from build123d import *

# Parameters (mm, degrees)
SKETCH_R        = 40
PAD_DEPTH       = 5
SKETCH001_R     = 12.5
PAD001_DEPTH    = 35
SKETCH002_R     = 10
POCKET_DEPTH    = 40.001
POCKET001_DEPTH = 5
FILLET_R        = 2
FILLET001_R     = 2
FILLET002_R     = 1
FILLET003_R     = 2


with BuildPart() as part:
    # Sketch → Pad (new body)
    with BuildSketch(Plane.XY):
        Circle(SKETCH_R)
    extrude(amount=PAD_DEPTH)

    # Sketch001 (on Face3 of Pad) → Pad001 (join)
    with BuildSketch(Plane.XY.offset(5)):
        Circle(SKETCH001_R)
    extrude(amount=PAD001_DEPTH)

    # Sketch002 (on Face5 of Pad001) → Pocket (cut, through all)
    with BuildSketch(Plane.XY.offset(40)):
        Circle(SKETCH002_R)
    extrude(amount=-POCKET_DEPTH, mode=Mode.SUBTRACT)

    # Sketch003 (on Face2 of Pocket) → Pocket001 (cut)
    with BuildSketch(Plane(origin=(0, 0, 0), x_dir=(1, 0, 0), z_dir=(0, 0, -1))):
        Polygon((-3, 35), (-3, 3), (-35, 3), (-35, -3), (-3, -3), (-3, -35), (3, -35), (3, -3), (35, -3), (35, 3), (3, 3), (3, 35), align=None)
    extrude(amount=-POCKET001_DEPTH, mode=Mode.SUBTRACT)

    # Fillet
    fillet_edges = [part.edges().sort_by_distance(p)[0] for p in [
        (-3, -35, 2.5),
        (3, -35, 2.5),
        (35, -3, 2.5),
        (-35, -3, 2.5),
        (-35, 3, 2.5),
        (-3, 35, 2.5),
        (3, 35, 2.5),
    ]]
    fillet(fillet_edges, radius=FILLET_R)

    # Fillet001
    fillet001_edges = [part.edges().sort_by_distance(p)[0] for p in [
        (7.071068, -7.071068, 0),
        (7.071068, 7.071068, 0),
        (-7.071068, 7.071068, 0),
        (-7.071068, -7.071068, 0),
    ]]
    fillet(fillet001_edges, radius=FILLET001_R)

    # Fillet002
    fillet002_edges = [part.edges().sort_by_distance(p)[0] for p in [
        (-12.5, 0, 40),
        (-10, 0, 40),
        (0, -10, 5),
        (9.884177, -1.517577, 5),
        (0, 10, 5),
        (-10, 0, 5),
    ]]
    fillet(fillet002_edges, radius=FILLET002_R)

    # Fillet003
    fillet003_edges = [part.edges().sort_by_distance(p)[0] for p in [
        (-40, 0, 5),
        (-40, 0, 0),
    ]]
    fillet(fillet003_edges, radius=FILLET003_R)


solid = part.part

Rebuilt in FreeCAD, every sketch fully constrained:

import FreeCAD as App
import Part
import Sketcher

V = App.Vector


def edges_at(feature, points):
    """Names of the edges that pass closest to the given points."""
    edges = feature.Shape.Edges
    near = lambda p: min(range(len(edges)), key=lambda i: edges[i].distToShape(Part.Vertex(*p))[0])
    return sorted({f"Edge{near(p) + 1}" for p in points})


def add_polygon(sketch, points):
    """Adds a closed chain of lines whose ends are joined by coincident constraints."""
    first, n = sketch.GeometryCount, len(points)
    for a, b in zip(points, points[1:] + points[:1]):
        sketch.addGeometry(Part.LineSegment(App.Vector(*a, 0), App.Vector(*b, 0)), False)
    for i in range(n):
        sketch.addConstraint(Sketcher.Constraint("Coincident", first + i, 2, first + (i + 1) % n, 1))

doc = App.newDocument("Part")
params = doc.addObject("Spreadsheet::Sheet", "Params")
for row, (alias, value) in enumerate([
    ("sketch1_diameter", "80 mm"),
    ("pad1_length", "5 mm"),
    ("sketch2_diameter", "25 mm"),
    ("pad2_length", "35 mm"),
    ("sketch3_diameter", "20 mm"),
    ("sketch4_width", "32 mm"),
    ("sketch4_width2", "6 mm"),
    ("pocket2_length", "5 mm"),
    ("fillet_radius", "2 mm"),
    ("fillet2_radius", "2 mm"),
    ("fillet3_radius", "1 mm"),
    ("fillet4_radius", "2 mm"),
], start=1):
    params.set(f"A{row}", alias)
    params.set(f"B{row}", "=" + value)
    params.setAlias(f"B{row}", alias)

body = doc.addObject("PartDesign::Body", "Body")

sketch1 = doc.addObject("Sketcher::SketchObject", "Sketch")
body.addObject(sketch1)
sketch1.AttachmentSupport = (doc.XY_Plane, [""])
sketch1.MapMode = "FlatFace"
sketch1.addGeometry(Part.Circle(V(0, 0, 0), V(0, 0, 1), 40), False)
sketch1.addConstraint([
    Sketcher.Constraint("Coincident", 0, 3, -1, 1),
    Sketcher.Constraint("Diameter", 0, 80.0),
])
sketch1.setExpression("Constraints[1]", "Params.sketch1_diameter")
pad1 = doc.addObject("PartDesign::Pad", "Pad")
body.addObject(pad1)
pad1.Profile = sketch1
pad1.setExpression("Length", "Params.pad1_length")

sketch2 = doc.addObject("Sketcher::SketchObject", "Sketch001")
body.addObject(sketch2)
sketch2.AttachmentSupport = (doc.XY_Plane, [""])
sketch2.MapMode = "FlatFace"
sketch2.AttachmentOffset = App.Placement(V(0, 0, 5), App.Rotation())
sketch2.addGeometry(Part.Circle(V(0, 0, 0), V(0, 0, 1), 12.5), False)
sketch2.addConstraint([
    Sketcher.Constraint("Coincident", 0, 3, -1, 1),
    Sketcher.Constraint("Diameter", 0, 25.0),
])
sketch2.setExpression("Constraints[1]", "Params.sketch2_diameter")
pad2 = doc.addObject("PartDesign::Pad", "Pad001")
body.addObject(pad2)
pad2.Profile = sketch2
pad2.setExpression("Length", "Params.pad2_length")

sketch3 = doc.addObject("Sketcher::SketchObject", "Sketch002")
body.addObject(sketch3)
sketch3.AttachmentSupport = (doc.XY_Plane, [""])
sketch3.MapMode = "FlatFace"
sketch3.AttachmentOffset = App.Placement(V(0, 0, 40), App.Rotation())
sketch3.addGeometry(Part.Circle(V(0, 0, 0), V(0, 0, 1), 10), False)
sketch3.addConstraint([
    Sketcher.Constraint("Coincident", 0, 3, -1, 1),
    Sketcher.Constraint("Diameter", 0, 20.0),
])
sketch3.setExpression("Constraints[1]", "Params.sketch3_diameter")
pocket1 = doc.addObject("PartDesign::Pocket", "Pocket")
body.addObject(pocket1)
pocket1.Profile = sketch3
pocket1.Type = "ThroughAll"

sketch4 = doc.addObject("Sketcher::SketchObject", "Sketch003")
body.addObject(sketch4)
sketch4.AttachmentSupport = (doc.XY_Plane, [""])
sketch4.MapMode = "FlatFace"
add_polygon(sketch4, [(-3, -35), (-3, -3), (-35, -3), (-35, 3), (-3, 3), (-3, 35), (3, 35), (3, 3), (35, 3), (35, -3), (3, -3), (3, -35)])
sketch4.addConstraint([
    Sketcher.Constraint("Vertical", 0),
    Sketcher.Constraint("Horizontal", 1),
    Sketcher.Constraint("Vertical", 2),
    Sketcher.Constraint("Horizontal", 3),
    Sketcher.Constraint("Vertical", 4),
    Sketcher.Constraint("Horizontal", 5),
    Sketcher.Constraint("Vertical", 6),
    Sketcher.Constraint("Horizontal", 7),
    Sketcher.Constraint("Vertical", 8),
    Sketcher.Constraint("Horizontal", 9),
    Sketcher.Constraint("Vertical", 10),
    Sketcher.Constraint("Horizontal", 11),
    Sketcher.Constraint("Symmetric", 0, 2, 6, 2, -1, 1),
    Sketcher.Constraint("Symmetric", 2, 2, 8, 2, -1, 1),
    Sketcher.Constraint("Symmetric", 4, 2, 10, 2, -1, 1),
    Sketcher.Constraint("Symmetric", 3, 2, 6, 2, -2),
    Sketcher.Constraint("Equal", 9, 0),
    Sketcher.Constraint("Equal", 11, 2),
    Sketcher.Constraint("DistanceX", 1, 2, 1, 1, 32.0),
    Sketcher.Constraint("DistanceX", 5, 1, 5, 2, 6.0),
])
sketch4.setExpression("Constraints[30]", "Params.sketch4_width")
sketch4.setExpression("Constraints[31]", "Params.sketch4_width2")
pocket2 = doc.addObject("PartDesign::Pocket", "Pocket001")
body.addObject(pocket2)
pocket2.Profile = sketch4
pocket2.setExpression("Length", "Params.pocket2_length")
pocket2.Reversed = True
doc.recompute()

fillet = doc.addObject("PartDesign::Fillet", "Fillet")
body.addObject(fillet)
fillet.Base = (pocket2, edges_at(pocket2, [
    (-3, -35, 2.5),
    (3, -35, 2.5),
    (35, -3, 2.5),
    (-35, -3, 2.5),
    (-35, 3, 2.5),
    (-3, 35, 2.5),
    (3, 35, 2.5),
]))
fillet.setExpression("Radius", "Params.fillet_radius")
doc.recompute()

fillet2 = doc.addObject("PartDesign::Fillet", "Fillet001")
body.addObject(fillet2)
fillet2.Base = (fillet, edges_at(fillet, [
    (7.071, -7.071, 0),
    (7.071, 7.071, 0),
    (-7.071, 7.071, 0),
    (-7.071, -7.071, 0),
]))
fillet2.setExpression("Radius", "Params.fillet2_radius")
doc.recompute()

fillet3 = doc.addObject("PartDesign::Fillet", "Fillet002")
body.addObject(fillet3)
fillet3.Base = (fillet2, edges_at(fillet2, [
    (-12.5, 0, 40),
    (-10, 0, 40),
    (0, -10, 5),
    (9.884, -1.518, 5),
    (0, 10, 5),
    (-10, 0, 5),
]))
fillet3.setExpression("Radius", "Params.fillet3_radius")
doc.recompute()

fillet4 = doc.addObject("PartDesign::Fillet", "Fillet003")
body.addObject(fillet4)
fillet4.Base = (fillet3, edges_at(fillet3, [(-40, 0, 5), (-40, 0, 0)]))
fillet4.setExpression("Radius", "Params.fillet4_radius")

doc.recompute()
